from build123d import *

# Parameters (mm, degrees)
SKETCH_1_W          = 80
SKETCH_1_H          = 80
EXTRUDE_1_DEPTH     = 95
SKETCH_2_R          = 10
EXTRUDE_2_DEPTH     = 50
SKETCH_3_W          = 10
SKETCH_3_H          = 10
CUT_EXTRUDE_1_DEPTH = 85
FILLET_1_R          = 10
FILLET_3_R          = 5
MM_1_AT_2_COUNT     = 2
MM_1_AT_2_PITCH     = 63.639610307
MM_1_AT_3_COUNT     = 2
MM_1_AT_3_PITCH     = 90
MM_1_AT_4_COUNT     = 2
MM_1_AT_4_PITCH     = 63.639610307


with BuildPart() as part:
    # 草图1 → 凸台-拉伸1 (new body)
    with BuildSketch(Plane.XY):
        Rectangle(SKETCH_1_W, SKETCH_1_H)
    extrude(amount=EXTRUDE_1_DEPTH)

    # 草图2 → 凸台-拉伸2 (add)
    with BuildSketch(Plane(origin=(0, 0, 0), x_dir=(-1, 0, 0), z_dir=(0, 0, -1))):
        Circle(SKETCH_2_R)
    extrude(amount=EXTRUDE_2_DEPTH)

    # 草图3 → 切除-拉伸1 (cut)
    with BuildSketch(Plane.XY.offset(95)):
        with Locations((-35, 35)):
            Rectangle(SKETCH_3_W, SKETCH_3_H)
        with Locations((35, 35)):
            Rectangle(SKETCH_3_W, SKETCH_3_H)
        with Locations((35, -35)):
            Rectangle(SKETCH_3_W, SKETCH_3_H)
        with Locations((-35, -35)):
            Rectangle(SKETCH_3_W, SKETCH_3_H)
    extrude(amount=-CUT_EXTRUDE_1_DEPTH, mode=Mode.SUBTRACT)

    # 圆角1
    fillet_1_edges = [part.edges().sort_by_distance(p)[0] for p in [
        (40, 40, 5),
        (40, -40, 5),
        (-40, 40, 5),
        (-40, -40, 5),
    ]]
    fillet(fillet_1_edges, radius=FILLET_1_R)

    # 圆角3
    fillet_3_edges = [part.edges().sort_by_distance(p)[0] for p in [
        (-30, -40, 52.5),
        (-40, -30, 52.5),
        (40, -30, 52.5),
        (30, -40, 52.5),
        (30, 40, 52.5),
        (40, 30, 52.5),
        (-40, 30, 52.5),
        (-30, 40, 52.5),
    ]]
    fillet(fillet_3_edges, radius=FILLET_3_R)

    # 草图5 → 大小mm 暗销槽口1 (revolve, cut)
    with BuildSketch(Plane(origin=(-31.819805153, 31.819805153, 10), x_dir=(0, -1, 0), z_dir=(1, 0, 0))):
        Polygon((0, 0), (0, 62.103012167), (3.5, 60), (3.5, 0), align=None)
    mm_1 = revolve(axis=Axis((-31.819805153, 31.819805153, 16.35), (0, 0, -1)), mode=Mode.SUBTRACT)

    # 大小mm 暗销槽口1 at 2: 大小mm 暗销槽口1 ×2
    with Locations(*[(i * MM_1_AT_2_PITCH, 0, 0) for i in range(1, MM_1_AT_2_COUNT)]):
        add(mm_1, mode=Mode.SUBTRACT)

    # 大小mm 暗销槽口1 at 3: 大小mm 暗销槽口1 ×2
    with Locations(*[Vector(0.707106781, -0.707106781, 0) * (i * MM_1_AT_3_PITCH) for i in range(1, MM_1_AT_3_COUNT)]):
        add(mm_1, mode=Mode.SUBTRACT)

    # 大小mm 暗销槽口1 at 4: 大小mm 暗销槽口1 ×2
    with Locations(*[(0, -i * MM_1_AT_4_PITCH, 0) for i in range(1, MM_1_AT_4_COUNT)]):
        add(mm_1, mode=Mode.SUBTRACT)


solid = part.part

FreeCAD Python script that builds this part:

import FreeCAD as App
import Part
import Sketcher

V = App.Vector
Q = App.Units.Quantity


def edges_at(feature, points):
    """Names of the edges that pass closest to the given points."""
    edges = feature.Shape.Edges
    near = lambda p: min(range(len(edges)), key=lambda i: edges[i].distToShape(Part.Vertex(*p))[0])
    return sorted({f"Edge{near(p) + 1}" for p in points})


def add_polygon(sketch, points):
    """Adds a closed chain of lines whose ends are joined by coincident constraints."""
    first, n = sketch.GeometryCount, len(points)
    for a, b in zip(points, points[1:] + points[:1]):
        sketch.addGeometry(Part.LineSegment(App.Vector(*a, 0), App.Vector(*b, 0)), False)
    for i in range(n):
        sketch.addConstraint(Sketcher.Constraint("Coincident", first + i, 2, first + (i + 1) % n, 1))

doc = App.newDocument("Part")
body = doc.addObject("PartDesign::Body", "Body")

sketch1 = body.newObject("Sketcher::SketchObject", "Sketch")
sketch1.AttachmentSupport = (doc.getObject("XY_Plane"), [""])
sketch1.MapMode = "FlatFace"
add_polygon(sketch1, [(-40, 40), (-40, -40), (40, -40), (40, 40)])
sketch1.addConstraint([
    Sketcher.Constraint("Vertical", 0),
    Sketcher.Constraint("Horizontal", 1),
    Sketcher.Constraint("Vertical", 2),
    Sketcher.Constraint("Horizontal", 3),
    Sketcher.Constraint("Symmetric", 0, 2, 2, 2, -1, 1),
    Sketcher.Constraint("Equal", 3, 0),
    Sketcher.Constraint("DistanceX", 1, 1, 1, 2, Q("80 mm")),
])
pad1 = body.newObject("PartDesign::Pad", "Pad")
pad1.Profile = sketch1
pad1.Length = 95

sketch2 = body.newObject("Sketcher::SketchObject", "Sketch001")
sketch2.AttachmentSupport = (doc.getObject("XY_Plane"), [""])
sketch2.MapMode = "FlatFace"
sketch2.addGeometry(Part.Circle(V(0, 0, 0), V(0, 0, 1), 10), False)
sketch2.addConstraint([
    Sketcher.Constraint("Coincident", 0, 3, -1, 1),
    Sketcher.Constraint("Diameter", 0, Q("20 mm")),
])
pad2 = body.newObject("PartDesign::Pad", "Pad001")
pad2.Profile = sketch2
pad2.Length = 50
pad2.Reversed = True

sketch3 = body.newObject("Sketcher::SketchObject", "Sketch002")
sketch3.AttachmentSupport = (doc.getObject("XY_Plane"), [""])
sketch3.MapMode = "FlatFace"
sketch3.AttachmentOffset = App.Placement(V(0, 0, 95), App.Rotation())
add_polygon(sketch3, [(-40, 40), (-40, 30), (-30, 30), (-30, 40)])
add_polygon(sketch3, [(30, 40), (30, 30), (40, 30), (40, 40)])
add_polygon(sketch3, [(30, -30), (30, -40), (40, -40), (40, -30)])
add_polygon(sketch3, [(-40, -30), (-40, -40), (-30, -40), (-30, -30)])
sketch3.addConstraint([
    Sketcher.Constraint("Vertical", 0),
    Sketcher.Constraint("Horizontal", 1),
    Sketcher.Constraint("Vertical", 2),
    Sketcher.Constraint("Horizontal", 3),
    Sketcher.Constraint("Vertical", 4),
    Sketcher.Constraint("Horizontal", 5),
    Sketcher.Constraint("Vertical", 6),
    Sketcher.Constraint("Horizontal", 7),
    Sketcher.Constraint("Vertical", 8),
    Sketcher.Constraint("Horizontal", 9),
    Sketcher.Constraint("Vertical", 10),
    Sketcher.Constraint("Horizontal", 11),
    Sketcher.Constraint("Vertical", 12),
    Sketcher.Constraint("Horizontal", 13),
    Sketcher.Constraint("Vertical", 14),
    Sketcher.Constraint("Horizontal", 15),
    Sketcher.Constraint("Symmetric", 2, 2, 8, 2, -1, 1),
    Sketcher.Constraint("Symmetric", 0, 2, 10, 2, -1, 1),
    Sketcher.Constraint("Symmetric", 6, 2, 12, 2, -1, 1),
    Sketcher.Constraint("Symmetric", 4, 2, 14, 2, -1, 1),
    Sketcher.Constraint("Symmetric", 1, 2, 4, 2, -2),
    Sketcher.Constraint("Symmetric", 3, 2, 6, 2, -2),
    Sketcher.Constraint("Equal", 15, 0),
    Sketcher.Constraint("DistanceX", 1, 1, 1, 2, Q("10 mm")),
    Sketcher.Constraint("DistanceX", 0, 2, -1, 1, Q("40 mm")),
    Sketcher.Constraint("DistanceY", -1, 1, 0, 2, Q("30 mm")),
])
pocket1 = body.newObject("PartDesign::Pocket", "Pocket")
pocket1.Profile = sketch3
pocket1.Length = 85
doc.recompute()

fillet = body.newObject("PartDesign::Fillet", "Fillet")
fillet.Base = (pocket1, edges_at(pocket1, [
    (40, 40, 5),
    (40, -40, 5),
    (-40, 40, 5),
    (-40, -40, 5),
]))
fillet.Radius = 10
doc.recompute()

fillet2 = body.newObject("PartDesign::Fillet", "Fillet001")
fillet2.Base = (fillet, edges_at(fillet, [
    (-30, -40, 52.5),
    (-40, -30, 52.5),
    (40, -30, 52.5),
    (30, -40, 52.5),
    (30, 40, 52.5),
    (40, 30, 52.5),
    (-40, 30, 52.5),
    (-30, 40, 52.5),
]))
fillet2.Radius = 5

sketch4 = body.newObject("Sketcher::SketchObject", "Sketch003")
sketch4.AttachmentSupport = (doc.getObject("YZ_Plane"), [""])
sketch4.MapMode = "FlatFace"
sketch4.AttachmentOffset = App.Placement(V(0, 0, -31.819805), App.Rotation())
add_polygon(sketch4, [(31.8, -52.1), (31.8, 10), (28.3, 10), (28.3, -50)])
sketch4.addGeometry(Part.LineSegment(V(31.8, 10, 0), V(31.8, -52.1, 0)), True)
sketch4.addConstraint([
    Sketcher.Constraint("Vertical", 0),
    Sketcher.Constraint("Horizontal", 1),
    Sketcher.Constraint("Vertical", 2),
    Sketcher.Constraint("Vertical", 4),
    Sketcher.Constraint("Coincident", 4, 1, 0, 2),
    Sketcher.Constraint("Equal", 0, 4),
    Sketcher.Constraint("DistanceY", 2, 2, 2, 1, Q("60 mm")),
    Sketcher.Constraint("Angle", 3, Q("-31 deg")),
    Sketcher.Constraint("DistanceX", 1, 2, 1, 1, Q("3.5 mm")),
    Sketcher.Constraint("DistanceY", -1, 1, 0, 2, Q("10 mm")),
    Sketcher.Constraint("DistanceX", -1, 1, 0, 2, Q("31.819805 mm")),
])
groove = body.newObject("PartDesign::Groove", "Groove")
groove.Profile = sketch4
groove.ReferenceAxis = (sketch4, ["Axis0"])
groove.Angle = 360
doc.recompute()

linearpattern = body.newObject("PartDesign::LinearPattern", "LinearPattern")
linearpattern.Originals = [groove]
linearpattern.Direction = (doc.getObject("X_Axis"), [""])
linearpattern.Mode = "offset"
linearpattern.Offset = 63.63961
linearpattern.Occurrences = 2
body.Tip = linearpattern
doc.recompute()

datumline = body.newObject("PartDesign::Line", "DatumLine")
datumline.Placement = App.Placement(V(0, 0, 0), App.Rotation(V(0, 0, 1), V(0.707106781, -0.707106781, 0)))
linearpattern2 = body.newObject("PartDesign::LinearPattern", "LinearPattern001")
linearpattern2.Originals = [groove]
linearpattern2.Direction = (datumline, [""])
linearpattern2.Mode = "offset"
linearpattern2.Offset = 90
linearpattern2.Occurrences = 2
body.Tip = linearpattern2
doc.recompute()

linearpattern3 = body.newObject("PartDesign::LinearPattern", "LinearPattern002")
linearpattern3.Originals = [groove]
linearpattern3.Direction = (doc.getObject("Y_Axis"), [""])
linearpattern3.Mode = "offset"
linearpattern3.Offset = 63.63961
linearpattern3.Occurrences = 2
linearpattern3.Reversed = True
body.Tip = linearpattern3

doc.recompute()
